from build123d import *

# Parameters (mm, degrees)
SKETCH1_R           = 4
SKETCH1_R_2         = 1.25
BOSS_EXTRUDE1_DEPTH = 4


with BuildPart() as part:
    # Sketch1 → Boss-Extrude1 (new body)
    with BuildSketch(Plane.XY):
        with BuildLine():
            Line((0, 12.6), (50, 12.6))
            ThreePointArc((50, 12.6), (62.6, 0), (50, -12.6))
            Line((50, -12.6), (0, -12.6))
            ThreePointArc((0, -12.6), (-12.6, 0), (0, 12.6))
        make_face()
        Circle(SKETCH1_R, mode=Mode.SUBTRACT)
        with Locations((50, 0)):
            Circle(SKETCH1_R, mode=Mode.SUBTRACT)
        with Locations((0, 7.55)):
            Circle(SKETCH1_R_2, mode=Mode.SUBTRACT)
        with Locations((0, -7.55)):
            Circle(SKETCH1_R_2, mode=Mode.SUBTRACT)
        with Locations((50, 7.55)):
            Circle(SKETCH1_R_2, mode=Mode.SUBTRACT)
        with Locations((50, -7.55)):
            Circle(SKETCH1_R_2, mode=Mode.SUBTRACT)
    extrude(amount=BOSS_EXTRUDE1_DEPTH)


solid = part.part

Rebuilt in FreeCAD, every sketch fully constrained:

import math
import FreeCAD as App
import Part
import Sketcher
from FreeCAD import Vector

doc = App.newDocument("Part")
body = doc.addObject("PartDesign::Body", "Body")

sketch1 = body.newObject("Sketcher::SketchObject", "Sketch")
sketch1.AttachmentSupport = (doc.getObject("XY_Plane"), [""])
sketch1.MapMode = "FlatFace"
sketch1.addGeometry(Part.LineSegment(Vector(50, 12.6, 0), Vector(0, 12.6, 0)), False)
sketch1.addGeometry(Part.ArcOfCircle(Part.Circle(Vector(0, 0, 0), Vector(0, 0, 1), 12.6), math.radians(90), math.radians(270)), False)
sketch1.addGeometry(Part.LineSegment(Vector(0, -12.6, 0), Vector(50, -12.6, 0)), False)
sketch1.addGeometry(Part.ArcOfCircle(Part.Circle(Vector(50, 0, 0), Vector(0, 0, 1), 12.6), math.radians(-90), math.radians(90)), False)
sketch1.addGeometry(Part.Circle(Vector(50, -7.5, 0), Vector(0, 0, 1), 1.2), False)
sketch1.addGeometry(Part.Circle(Vector(0, -7.5, 0), Vector(0, 0, 1), 1.2), False)
sketch1.addGeometry(Part.Circle(Vector(50, 0, 0), Vector(0, 0, 1), 4), False)
sketch1.addGeometry(Part.Circle(Vector(50, 7.5, 0), Vector(0, 0, 1), 1.2), False)
sketch1.addGeometry(Part.Circle(Vector(0, 0, 0), Vector(0, 0, 1), 4), False)
sketch1.addGeometry(Part.Circle(Vector(0, 7.5, 0), Vector(0, 0, 1), 1.2), False)
sketch1.addConstraint(Sketcher.Constraint("Tangent", 0, 2, 1, 1))
sketch1.addConstraint(Sketcher.Constraint("Tangent", 1, 2, 2, 1))
sketch1.addConstraint(Sketcher.Constraint("Tangent", 2, 2, 3, 1))
sketch1.addConstraint(Sketcher.Constraint("Tangent", 3, 2, 0, 1))
sketch1.addConstraint(Sketcher.Constraint("Horizontal", 0))
sketch1.addConstraint(Sketcher.Constraint("Horizontal", 2))
sketch1.addConstraint(Sketcher.Constraint("Coincident", 1, 3, -1, 1))
sketch1.addConstraint(Sketcher.Constraint("Coincident", 8, 3, -1, 1))
sketch1.addConstraint(Sketcher.Constraint("Coincident", 6, 3, 3, 3))
sketch1.addConstraint(Sketcher.Constraint("Equal", 4, 5))
sketch1.addConstraint(Sketcher.Constraint("Equal", 5, 7))
sketch1.addConstraint(Sketcher.Constraint("Equal", 6, 8))
sketch1.addConstraint(Sketcher.Constraint("Equal", 7, 9))
sketch1.addConstraint(Sketcher.Constraint("Symmetric", 5, 3, 9, 3, -1, 1))
sketch1.addConstraint(Sketcher.Constraint("Symmetric", 4, 3, 7, 3, -1))
sketch1.addConstraint(Sketcher.Constraint("PointOnObject", 5, 3, -2))
sketch1.addConstraint(Sketcher.Constraint("Horizontal", 4, 3, 5, 3))
sketch1.addConstraint(Sketcher.Constraint("Vertical", 3, 3, 4, 3))
sketch1.addConstraint(Sketcher.Constraint("Diameter", 6, 8.0))
sketch1.addConstraint(Sketcher.Constraint("Diameter", 4, 2.5))
sketch1.addConstraint(Sketcher.Constraint("Radius", 1, 12.6))
sketch1.addConstraint(Sketcher.Constraint("DistanceX", 0, 2, 0, 1, 50.0))
sketch1.addConstraint(Sketcher.Constraint("DistanceY", 4, 3, 7, 3, 15.1))
pad1 = body.newObject("PartDesign::Pad", "Pad")
pad1.Profile = sketch1
pad1.Length = 4

doc.recompute()
